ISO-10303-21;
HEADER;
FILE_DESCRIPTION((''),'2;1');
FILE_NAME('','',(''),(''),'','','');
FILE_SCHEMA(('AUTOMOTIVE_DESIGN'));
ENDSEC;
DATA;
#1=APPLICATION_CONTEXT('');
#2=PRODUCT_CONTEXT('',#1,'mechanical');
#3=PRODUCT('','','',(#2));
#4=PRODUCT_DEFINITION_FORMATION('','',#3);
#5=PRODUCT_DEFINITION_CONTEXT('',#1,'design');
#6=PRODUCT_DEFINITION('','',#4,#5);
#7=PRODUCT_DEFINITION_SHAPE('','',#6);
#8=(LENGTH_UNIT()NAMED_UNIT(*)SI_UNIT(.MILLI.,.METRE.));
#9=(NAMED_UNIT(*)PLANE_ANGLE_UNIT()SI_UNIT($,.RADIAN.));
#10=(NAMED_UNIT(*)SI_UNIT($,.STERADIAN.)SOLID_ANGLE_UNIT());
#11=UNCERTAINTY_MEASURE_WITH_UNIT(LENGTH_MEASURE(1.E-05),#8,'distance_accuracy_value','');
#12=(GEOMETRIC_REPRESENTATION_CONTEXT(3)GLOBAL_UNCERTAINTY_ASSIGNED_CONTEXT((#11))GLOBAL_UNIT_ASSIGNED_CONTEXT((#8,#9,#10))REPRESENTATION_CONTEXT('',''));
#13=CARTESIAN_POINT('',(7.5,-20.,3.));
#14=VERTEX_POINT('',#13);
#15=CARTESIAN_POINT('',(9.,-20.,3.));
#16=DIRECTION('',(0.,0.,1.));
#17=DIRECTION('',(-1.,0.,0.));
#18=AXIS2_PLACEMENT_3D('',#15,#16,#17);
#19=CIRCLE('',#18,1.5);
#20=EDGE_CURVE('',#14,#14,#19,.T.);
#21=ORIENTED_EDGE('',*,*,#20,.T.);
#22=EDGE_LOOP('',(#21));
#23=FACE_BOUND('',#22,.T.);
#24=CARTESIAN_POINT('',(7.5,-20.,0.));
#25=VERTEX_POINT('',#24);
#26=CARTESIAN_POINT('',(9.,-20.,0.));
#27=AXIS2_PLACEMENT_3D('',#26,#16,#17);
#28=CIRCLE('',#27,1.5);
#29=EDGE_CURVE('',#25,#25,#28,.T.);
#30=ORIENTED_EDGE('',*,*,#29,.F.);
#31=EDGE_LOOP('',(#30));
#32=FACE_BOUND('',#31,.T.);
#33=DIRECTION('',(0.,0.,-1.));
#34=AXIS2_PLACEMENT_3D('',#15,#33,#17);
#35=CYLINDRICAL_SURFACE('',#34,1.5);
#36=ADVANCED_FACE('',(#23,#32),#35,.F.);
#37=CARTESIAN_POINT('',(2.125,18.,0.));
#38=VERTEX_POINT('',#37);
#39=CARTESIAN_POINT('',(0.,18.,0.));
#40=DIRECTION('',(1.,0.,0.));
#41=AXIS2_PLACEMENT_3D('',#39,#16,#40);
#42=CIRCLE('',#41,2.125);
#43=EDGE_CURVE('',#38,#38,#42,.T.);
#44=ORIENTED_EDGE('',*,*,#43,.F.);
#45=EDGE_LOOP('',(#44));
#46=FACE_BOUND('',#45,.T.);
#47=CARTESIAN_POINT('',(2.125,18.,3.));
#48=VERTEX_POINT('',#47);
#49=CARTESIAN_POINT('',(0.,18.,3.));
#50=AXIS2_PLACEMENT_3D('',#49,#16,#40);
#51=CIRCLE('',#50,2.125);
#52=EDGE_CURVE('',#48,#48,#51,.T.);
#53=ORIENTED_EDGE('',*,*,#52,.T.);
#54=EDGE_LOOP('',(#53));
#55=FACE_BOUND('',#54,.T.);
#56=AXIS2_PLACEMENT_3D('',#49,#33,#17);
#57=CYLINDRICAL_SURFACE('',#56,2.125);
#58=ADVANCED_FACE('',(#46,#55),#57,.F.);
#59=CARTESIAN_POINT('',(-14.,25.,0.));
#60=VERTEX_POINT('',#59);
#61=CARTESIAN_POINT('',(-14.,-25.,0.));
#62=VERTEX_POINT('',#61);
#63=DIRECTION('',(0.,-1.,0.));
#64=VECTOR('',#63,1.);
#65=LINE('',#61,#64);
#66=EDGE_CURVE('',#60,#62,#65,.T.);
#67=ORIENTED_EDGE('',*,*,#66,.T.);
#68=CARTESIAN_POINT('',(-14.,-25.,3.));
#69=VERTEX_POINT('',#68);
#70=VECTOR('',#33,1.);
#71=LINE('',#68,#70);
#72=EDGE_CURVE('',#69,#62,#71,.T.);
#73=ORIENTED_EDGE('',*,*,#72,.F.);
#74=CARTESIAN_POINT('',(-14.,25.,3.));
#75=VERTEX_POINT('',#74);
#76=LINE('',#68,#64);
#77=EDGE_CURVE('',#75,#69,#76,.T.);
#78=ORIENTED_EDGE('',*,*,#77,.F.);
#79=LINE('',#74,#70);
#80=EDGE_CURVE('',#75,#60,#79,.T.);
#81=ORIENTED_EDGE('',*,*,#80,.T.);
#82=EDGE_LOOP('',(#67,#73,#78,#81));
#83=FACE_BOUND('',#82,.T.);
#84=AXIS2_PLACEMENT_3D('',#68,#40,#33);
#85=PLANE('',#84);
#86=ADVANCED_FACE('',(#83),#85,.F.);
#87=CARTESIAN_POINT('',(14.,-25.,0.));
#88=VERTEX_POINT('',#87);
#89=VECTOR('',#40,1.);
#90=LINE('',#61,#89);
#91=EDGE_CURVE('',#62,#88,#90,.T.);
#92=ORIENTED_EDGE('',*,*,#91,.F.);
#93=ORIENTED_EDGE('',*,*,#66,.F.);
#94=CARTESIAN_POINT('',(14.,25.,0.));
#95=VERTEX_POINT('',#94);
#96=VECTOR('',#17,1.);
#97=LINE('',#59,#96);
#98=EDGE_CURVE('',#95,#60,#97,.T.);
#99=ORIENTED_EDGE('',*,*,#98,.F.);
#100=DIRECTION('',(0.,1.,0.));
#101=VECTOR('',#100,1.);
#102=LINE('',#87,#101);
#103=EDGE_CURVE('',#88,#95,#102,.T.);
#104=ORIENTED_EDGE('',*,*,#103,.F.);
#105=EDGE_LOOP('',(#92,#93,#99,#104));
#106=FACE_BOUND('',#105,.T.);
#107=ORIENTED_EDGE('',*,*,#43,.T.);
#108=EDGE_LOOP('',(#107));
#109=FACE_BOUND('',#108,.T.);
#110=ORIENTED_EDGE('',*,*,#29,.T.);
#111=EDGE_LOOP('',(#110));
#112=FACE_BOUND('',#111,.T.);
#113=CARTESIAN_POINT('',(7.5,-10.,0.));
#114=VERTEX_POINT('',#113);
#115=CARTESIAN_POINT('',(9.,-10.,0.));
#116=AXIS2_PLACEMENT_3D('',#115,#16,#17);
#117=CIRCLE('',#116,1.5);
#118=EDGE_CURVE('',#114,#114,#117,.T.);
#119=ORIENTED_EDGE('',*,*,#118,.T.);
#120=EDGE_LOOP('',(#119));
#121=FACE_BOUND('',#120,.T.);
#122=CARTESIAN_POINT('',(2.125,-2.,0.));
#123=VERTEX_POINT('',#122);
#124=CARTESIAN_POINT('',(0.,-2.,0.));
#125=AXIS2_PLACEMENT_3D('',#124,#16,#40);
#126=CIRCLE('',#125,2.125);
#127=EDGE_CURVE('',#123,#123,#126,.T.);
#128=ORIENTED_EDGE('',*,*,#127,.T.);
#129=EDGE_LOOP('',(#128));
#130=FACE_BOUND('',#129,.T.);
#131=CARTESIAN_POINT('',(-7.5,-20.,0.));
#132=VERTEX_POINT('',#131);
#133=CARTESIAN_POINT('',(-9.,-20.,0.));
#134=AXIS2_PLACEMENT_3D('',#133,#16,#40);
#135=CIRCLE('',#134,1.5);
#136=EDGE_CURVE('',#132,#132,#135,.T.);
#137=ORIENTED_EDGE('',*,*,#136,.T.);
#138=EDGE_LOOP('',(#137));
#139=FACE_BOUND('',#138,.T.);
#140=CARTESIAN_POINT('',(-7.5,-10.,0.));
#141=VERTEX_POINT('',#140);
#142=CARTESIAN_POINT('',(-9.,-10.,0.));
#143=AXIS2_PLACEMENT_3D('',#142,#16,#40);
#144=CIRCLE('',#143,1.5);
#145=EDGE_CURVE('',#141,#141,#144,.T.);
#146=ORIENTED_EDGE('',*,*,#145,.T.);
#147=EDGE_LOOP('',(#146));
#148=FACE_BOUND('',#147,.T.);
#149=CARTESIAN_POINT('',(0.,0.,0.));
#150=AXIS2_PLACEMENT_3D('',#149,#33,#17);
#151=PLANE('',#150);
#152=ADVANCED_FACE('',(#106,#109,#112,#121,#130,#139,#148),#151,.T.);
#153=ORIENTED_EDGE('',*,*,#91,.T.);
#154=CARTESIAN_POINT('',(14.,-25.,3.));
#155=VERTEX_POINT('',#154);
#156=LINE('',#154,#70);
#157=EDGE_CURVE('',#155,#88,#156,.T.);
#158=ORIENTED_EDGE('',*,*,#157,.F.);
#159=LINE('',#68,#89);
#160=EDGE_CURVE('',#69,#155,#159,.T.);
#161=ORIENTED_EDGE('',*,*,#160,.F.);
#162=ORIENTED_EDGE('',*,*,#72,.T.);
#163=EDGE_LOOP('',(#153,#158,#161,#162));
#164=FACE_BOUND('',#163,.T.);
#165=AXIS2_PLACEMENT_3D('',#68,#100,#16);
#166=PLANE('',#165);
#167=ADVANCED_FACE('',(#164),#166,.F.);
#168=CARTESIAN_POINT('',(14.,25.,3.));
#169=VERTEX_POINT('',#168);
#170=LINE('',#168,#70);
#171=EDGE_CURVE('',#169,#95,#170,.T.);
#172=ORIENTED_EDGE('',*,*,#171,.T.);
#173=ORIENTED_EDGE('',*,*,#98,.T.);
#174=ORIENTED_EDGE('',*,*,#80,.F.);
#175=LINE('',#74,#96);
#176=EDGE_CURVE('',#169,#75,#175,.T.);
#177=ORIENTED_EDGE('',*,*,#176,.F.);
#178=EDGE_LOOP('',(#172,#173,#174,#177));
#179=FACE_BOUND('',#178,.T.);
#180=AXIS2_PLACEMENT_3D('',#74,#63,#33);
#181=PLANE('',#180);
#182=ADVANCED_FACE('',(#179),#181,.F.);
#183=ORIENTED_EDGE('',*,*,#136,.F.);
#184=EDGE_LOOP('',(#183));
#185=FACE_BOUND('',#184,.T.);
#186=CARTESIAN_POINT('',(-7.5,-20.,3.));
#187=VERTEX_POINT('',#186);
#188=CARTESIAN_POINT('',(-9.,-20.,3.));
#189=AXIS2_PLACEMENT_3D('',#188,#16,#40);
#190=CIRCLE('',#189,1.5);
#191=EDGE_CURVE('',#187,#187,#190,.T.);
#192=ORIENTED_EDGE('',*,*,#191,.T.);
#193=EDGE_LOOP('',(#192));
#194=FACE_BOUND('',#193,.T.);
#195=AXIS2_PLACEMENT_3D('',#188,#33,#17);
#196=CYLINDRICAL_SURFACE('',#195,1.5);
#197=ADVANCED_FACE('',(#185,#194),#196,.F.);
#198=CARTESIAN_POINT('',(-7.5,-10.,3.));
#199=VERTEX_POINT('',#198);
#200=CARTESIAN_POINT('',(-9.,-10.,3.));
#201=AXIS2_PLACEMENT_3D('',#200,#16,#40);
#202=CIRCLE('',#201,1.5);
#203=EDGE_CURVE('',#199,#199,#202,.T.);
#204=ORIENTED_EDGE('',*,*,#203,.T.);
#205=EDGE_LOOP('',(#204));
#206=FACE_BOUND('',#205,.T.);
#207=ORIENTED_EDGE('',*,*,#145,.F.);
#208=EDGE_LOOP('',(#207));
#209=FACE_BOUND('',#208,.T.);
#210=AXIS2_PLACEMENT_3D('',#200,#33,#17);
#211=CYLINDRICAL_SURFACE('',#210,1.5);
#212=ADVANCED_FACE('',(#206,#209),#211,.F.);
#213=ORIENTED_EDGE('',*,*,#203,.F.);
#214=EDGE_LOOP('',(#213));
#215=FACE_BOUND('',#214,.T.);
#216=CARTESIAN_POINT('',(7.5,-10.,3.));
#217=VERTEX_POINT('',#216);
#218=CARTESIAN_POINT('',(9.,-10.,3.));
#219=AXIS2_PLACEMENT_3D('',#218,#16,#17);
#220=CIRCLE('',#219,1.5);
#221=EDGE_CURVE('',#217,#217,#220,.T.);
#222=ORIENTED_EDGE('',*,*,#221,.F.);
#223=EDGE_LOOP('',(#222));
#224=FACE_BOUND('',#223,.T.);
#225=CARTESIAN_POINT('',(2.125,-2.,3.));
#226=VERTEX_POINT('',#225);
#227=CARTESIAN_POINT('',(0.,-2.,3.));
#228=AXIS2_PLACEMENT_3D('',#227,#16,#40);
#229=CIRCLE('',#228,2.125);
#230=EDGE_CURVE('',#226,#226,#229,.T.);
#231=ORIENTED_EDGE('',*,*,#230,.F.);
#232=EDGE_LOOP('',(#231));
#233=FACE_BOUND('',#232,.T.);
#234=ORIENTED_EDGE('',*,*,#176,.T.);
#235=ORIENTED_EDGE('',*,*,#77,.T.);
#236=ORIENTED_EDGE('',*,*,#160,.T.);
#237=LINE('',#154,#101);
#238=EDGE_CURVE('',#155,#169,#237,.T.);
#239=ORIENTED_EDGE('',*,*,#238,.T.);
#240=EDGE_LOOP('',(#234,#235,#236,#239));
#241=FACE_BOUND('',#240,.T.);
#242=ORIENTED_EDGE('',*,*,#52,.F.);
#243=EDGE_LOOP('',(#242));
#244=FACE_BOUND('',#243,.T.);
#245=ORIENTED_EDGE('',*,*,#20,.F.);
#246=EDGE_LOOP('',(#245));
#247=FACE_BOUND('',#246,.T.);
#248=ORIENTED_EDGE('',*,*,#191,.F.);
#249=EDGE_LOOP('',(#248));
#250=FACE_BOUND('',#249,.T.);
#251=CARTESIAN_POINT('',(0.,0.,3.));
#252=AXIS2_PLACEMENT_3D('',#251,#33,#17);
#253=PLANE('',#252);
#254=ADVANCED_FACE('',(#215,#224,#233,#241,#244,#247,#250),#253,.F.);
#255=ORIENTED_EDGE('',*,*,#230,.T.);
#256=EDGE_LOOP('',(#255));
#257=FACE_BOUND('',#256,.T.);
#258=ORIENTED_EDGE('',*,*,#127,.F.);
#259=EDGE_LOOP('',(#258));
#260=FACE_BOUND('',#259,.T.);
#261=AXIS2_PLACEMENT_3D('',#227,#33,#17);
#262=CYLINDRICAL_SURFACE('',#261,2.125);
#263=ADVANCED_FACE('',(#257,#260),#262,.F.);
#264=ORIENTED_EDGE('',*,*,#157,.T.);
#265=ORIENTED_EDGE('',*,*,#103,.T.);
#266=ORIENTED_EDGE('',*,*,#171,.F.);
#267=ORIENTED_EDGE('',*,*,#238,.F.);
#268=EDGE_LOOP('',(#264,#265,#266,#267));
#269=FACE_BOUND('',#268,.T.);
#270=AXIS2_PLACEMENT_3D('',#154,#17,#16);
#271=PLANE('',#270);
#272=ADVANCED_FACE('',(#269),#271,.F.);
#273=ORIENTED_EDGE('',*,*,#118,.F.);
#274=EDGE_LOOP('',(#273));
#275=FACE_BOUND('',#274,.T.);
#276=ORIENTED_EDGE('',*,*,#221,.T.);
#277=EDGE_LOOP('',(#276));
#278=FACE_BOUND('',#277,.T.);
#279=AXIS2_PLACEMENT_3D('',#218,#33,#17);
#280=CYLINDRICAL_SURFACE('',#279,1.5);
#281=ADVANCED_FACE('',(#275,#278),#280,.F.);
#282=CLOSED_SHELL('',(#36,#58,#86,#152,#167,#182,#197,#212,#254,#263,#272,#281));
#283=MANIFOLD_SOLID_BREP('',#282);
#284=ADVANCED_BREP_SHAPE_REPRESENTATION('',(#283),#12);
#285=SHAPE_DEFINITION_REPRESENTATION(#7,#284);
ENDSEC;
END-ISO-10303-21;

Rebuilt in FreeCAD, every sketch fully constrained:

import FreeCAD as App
import Part
import Sketcher

doc = App.newDocument("Part")
body = doc.addObject("PartDesign::Body", "Body")

# Sketch on XY plane
sketch1 = body.newObject("Sketcher::SketchObject", "Sketch")
sketch1.AttachmentSupport = (doc.getObject("XY_Plane"), [""])
sketch1.MapMode = "FlatFace"
sketch1.addGeometry([
    Part.LineSegment(App.Vector(-14, 25, 0), App.Vector(-14, -25, 0)),  # 0
    Part.LineSegment(App.Vector(-14, -25, 0), App.Vector(14, -25, 0)),  # 1
    Part.LineSegment(App.Vector(14, -25, 0), App.Vector(14, 25, 0)),  # 2
    Part.LineSegment(App.Vector(14, 25, 0), App.Vector(-14, 25, 0)),  # 3
    Part.Circle(App.Vector(-9, -20, 0), App.Vector(0, 0, 1), 1.5),  # 4
    Part.Circle(App.Vector(-9, -10, 0), App.Vector(0, 0, 1), 1.5),  # 5
    Part.Circle(App.Vector(9, -20, 0), App.Vector(0, 0, 1), 1.5),  # 6
    Part.Circle(App.Vector(0, -2, 0), App.Vector(0, 0, 1), 2.1),  # 7
    Part.Circle(App.Vector(9, -10, 0), App.Vector(0, 0, 1), 1.5),  # 8
    Part.Circle(App.Vector(0, 18, 0), App.Vector(0, 0, 1), 2.1),  # 9
], False)
sketch1.addConstraint([
    Sketcher.Constraint("Coincident", 0, 2, 1, 1),
    Sketcher.Constraint("Coincident", 1, 2, 2, 1),
    Sketcher.Constraint("Coincident", 2, 2, 3, 1),
    Sketcher.Constraint("Coincident", 3, 2, 0, 1),
    Sketcher.Constraint("Vertical", 0),
    Sketcher.Constraint("Horizontal", 1),
    Sketcher.Constraint("Vertical", 2),
    Sketcher.Constraint("Horizontal", 3),
    Sketcher.Constraint("Equal", 4, 5),
    Sketcher.Constraint("Equal", 5, 6),
    Sketcher.Constraint("Equal", 6, 8),
    Sketcher.Constraint("Equal", 7, 9),
    Sketcher.Constraint("Symmetric", 0, 2, 2, 2, -1, 1),
    Sketcher.Constraint("Symmetric", 4, 3, 6, 3, -2),
    Sketcher.Constraint("Symmetric", 5, 3, 8, 3, -2),
    Sketcher.Constraint("PointOnObject", 7, 3, -2),
    Sketcher.Constraint("PointOnObject", 9, 3, -2),
    Sketcher.Constraint("Vertical", 4, 3, 5, 3),
    Sketcher.Constraint("Diameter", 4, 3.0),
    Sketcher.Constraint("Diameter", 7, 4.25),
    Sketcher.Constraint("DistanceX", 1, 1, 1, 2, 28.0),
    Sketcher.Constraint("DistanceY", 0, 2, 0, 1, 50.0),
    Sketcher.Constraint("DistanceX", 4, 3, -1, 1, 9.0),
    Sketcher.Constraint("DistanceY", 4, 3, -1, 1, 20.0),
    Sketcher.Constraint("DistanceY", 5, 3, -1, 1, 10.0),
    Sketcher.Constraint("DistanceY", 7, 3, -1, 1, 2.0),
    Sketcher.Constraint("DistanceY", -1, 1, 9, 3, 18.0),
])
pad1 = body.newObject("PartDesign::Pad", "Pad")
pad1.Profile = sketch1
pad1.Length = 3

doc.recompute()
